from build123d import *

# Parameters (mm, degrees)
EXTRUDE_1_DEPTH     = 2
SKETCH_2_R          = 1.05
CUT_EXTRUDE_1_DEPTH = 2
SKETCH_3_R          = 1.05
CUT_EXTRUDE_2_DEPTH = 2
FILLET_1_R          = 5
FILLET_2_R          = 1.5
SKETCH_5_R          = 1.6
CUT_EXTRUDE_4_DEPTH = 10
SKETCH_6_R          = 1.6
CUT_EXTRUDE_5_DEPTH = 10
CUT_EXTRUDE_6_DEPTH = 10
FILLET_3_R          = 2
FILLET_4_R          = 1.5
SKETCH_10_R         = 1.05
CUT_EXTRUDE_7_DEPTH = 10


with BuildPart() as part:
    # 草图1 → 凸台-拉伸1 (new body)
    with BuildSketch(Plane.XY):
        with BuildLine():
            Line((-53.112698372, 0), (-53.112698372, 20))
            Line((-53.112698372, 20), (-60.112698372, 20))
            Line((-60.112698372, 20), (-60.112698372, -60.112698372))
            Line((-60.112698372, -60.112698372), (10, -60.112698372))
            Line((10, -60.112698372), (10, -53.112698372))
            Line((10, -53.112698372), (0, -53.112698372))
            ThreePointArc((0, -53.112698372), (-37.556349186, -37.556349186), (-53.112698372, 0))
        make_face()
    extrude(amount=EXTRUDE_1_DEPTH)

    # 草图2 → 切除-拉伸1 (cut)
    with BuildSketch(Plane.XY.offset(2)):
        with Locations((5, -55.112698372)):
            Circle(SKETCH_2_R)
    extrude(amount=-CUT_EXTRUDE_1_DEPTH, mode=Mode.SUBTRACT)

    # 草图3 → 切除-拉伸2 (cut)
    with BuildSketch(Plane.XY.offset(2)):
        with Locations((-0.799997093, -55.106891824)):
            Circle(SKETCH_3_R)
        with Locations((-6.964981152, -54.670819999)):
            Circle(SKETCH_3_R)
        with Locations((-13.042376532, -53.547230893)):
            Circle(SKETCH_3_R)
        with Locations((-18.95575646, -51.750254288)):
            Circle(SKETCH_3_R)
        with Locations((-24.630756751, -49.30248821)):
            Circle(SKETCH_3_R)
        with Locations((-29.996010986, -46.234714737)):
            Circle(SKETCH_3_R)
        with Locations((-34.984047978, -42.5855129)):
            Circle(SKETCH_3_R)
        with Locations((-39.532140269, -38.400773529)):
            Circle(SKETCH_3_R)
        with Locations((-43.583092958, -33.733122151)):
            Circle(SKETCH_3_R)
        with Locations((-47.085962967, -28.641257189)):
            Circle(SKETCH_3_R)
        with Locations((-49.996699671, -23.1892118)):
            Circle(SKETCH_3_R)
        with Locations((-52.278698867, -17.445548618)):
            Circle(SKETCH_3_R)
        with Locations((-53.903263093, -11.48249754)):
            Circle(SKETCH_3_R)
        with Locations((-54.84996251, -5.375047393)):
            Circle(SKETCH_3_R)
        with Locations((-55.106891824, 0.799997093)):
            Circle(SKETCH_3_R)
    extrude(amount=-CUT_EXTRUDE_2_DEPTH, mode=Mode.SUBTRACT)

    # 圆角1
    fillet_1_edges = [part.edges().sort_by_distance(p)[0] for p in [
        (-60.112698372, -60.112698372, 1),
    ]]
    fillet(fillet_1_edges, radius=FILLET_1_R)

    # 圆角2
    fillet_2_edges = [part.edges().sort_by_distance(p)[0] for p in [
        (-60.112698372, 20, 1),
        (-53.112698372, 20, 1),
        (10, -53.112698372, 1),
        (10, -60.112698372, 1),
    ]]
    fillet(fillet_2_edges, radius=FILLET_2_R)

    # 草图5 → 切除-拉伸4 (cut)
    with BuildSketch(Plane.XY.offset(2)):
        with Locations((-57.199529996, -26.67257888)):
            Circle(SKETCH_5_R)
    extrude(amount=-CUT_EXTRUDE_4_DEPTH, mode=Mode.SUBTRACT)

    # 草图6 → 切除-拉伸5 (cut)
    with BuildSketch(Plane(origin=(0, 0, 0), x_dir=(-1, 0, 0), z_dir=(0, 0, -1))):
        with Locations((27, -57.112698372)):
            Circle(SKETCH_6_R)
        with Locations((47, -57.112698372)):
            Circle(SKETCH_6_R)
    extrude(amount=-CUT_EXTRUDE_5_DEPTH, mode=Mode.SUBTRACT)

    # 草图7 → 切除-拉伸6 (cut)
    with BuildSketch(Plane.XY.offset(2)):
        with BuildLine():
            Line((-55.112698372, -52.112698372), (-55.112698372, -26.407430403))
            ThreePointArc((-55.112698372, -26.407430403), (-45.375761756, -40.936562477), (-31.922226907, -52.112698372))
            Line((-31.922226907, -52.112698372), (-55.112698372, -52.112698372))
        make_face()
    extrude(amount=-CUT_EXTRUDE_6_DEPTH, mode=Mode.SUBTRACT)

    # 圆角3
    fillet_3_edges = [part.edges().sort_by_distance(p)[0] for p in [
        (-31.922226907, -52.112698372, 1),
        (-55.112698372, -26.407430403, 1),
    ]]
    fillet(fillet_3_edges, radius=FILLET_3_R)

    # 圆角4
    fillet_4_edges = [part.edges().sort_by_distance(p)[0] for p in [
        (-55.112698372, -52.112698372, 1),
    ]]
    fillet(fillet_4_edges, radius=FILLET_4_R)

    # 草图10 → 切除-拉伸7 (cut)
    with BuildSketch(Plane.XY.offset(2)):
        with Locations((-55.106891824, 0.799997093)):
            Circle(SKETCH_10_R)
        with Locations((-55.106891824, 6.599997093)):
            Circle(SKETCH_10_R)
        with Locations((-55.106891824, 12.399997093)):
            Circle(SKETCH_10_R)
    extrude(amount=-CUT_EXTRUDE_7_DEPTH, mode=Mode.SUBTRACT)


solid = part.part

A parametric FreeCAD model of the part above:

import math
import FreeCAD as App
import Part
import Sketcher

V = App.Vector


def edges_at(feature, points):
    """Names of the edges that pass closest to the given points."""
    edges = feature.Shape.Edges
    near = lambda p: min(range(len(edges)), key=lambda i: edges[i].distToShape(Part.Vertex(*p))[0])
    return sorted({f"Edge{near(p) + 1}" for p in points})

doc = App.newDocument("Part")
params = doc.addObject("Spreadsheet::Sheet", "Params")
for row, (alias, value) in enumerate([
    ("sketch1_width", "7 mm"),
    ("sketch1_width2", "10 mm"),
    ("sketch1_height", "20 mm"),
    ("pad1_length", "2 mm"),
    ("sketch2_diameter", "2.1 mm"),
    ("pocket1_length", "2 mm"),
    ("sketch3_diameter", "2.1 mm"),
    ("pocket2_length", "2 mm"),
    ("fillet_radius", "5 mm"),
    ("fillet2_radius", "1.5 mm"),
    ("sketch4_diameter", "3.2 mm"),
    ("pocket3_length", "10 mm"),
    ("sketch5_diameter", "3.2 mm"),
    ("pocket4_length", "10 mm"),
    ("pocket5_length", "10 mm"),
    ("fillet3_radius", "2 mm"),
    ("fillet4_radius", "1.5 mm"),
    ("sketch7_diameter", "2.1 mm"),
    ("pocket6_length", "10 mm"),
], start=1):
    params.set(f"A{row}", alias)
    params.set(f"B{row}", "=" + value)
    params.setAlias(f"B{row}", alias)

body = doc.addObject("PartDesign::Body", "Body")

# Sketch on XY plane
sketch1 = body.newObject("Sketcher::SketchObject", "Sketch")
sketch1.AttachmentSupport = (doc.getObject("XY_Plane"), [""])
sketch1.MapMode = "FlatFace"
sketch1.addGeometry([
    Part.LineSegment(V(-53, 0, 0), V(-53, 20, 0)),  # 0
    Part.LineSegment(V(-53, 20, 0), V(-60, 20, 0)),  # 1
    Part.LineSegment(V(-60, 20, 0), V(-60, -60, 0)),  # 2
    Part.LineSegment(V(-60, -60, 0), V(10, -60, 0)),  # 3
    Part.LineSegment(V(10, -60, 0), V(10, -53, 0)),  # 4
    Part.LineSegment(V(10, -53, 0), V(0, -53, 0)),  # 5
    Part.ArcOfCircle(Part.Circle(V(0, 0, 0), V(0, 0, 1), 53), math.radians(180), math.radians(270)),  # 6
], False)
sketch1.addConstraint([
    Sketcher.Constraint("Coincident", 0, 2, 1, 1),
    Sketcher.Constraint("Coincident", 1, 2, 2, 1),
    Sketcher.Constraint("Coincident", 2, 2, 3, 1),
    Sketcher.Constraint("Coincident", 3, 2, 4, 1),
    Sketcher.Constraint("Coincident", 4, 2, 5, 1),
    Sketcher.Constraint("Tangent", 5, 2, 6, 2),
    Sketcher.Constraint("Tangent", 6, 1, 0, 1),
    Sketcher.Constraint("Vertical", 0),
    Sketcher.Constraint("Horizontal", 1),
    Sketcher.Constraint("Vertical", 2),
    Sketcher.Constraint("Horizontal", 3),
    Sketcher.Constraint("Vertical", 4),
    Sketcher.Constraint("Horizontal", 5),
    Sketcher.Constraint("Coincident", 6, 3, -1, 1),
    Sketcher.Constraint("Equal", 1, 4),
    Sketcher.Constraint("DistanceX", 1, 2, 1, 1, 7.0),
    Sketcher.Constraint("DistanceX", 5, 2, 5, 1, 10.0),
    Sketcher.Constraint("DistanceY", 0, 1, 0, 2, 20.0),
    Sketcher.Constraint("Radius", 6, 53.112698),
])
sketch1.setExpression("Constraints[15]", "Params.sketch1_width")
sketch1.setExpression("Constraints[16]", "Params.sketch1_width2")
sketch1.setExpression("Constraints[17]", "Params.sketch1_height")
pad1 = body.newObject("PartDesign::Pad", "Pad")
pad1.Profile = sketch1
pad1.setExpression("Length", "Params.pad1_length")

# Sketch on XY plane
sketch2 = body.newObject("Sketcher::SketchObject", "Sketch001")
sketch2.AttachmentSupport = (doc.getObject("XY_Plane"), [""])
sketch2.MapMode = "FlatFace"
sketch2.AttachmentOffset = App.Placement(V(0, 0, 2), App.Rotation())
sketch2.addGeometry(Part.Circle(V(5, -55.1, 0), V(0, 0, 1), 1.1), False)
sketch2.addConstraint([
    Sketcher.Constraint("Diameter", 0, 2.1),
    Sketcher.Constraint("DistanceX", -1, 1, 0, 3, 5.0),
    Sketcher.Constraint("DistanceY", 0, 3, -1, 1, 55.112698),
])
sketch2.setExpression("Constraints[0]", "Params.sketch2_diameter")
pocket1 = body.newObject("PartDesign::Pocket", "Pocket")
pocket1.Profile = sketch2
pocket1.setExpression("Length", "Params.pocket1_length")

# Sketch on XY plane
sketch3 = body.newObject("Sketcher::SketchObject", "Sketch002")
sketch3.AttachmentSupport = (doc.getObject("XY_Plane"), [""])
sketch3.MapMode = "FlatFace"
sketch3.AttachmentOffset = App.Placement(V(0, 0, 2), App.Rotation())
sketch3.addGeometry([
    Part.Circle(V(-0.8, -55.1, 0), V(0, 0, 1), 1.1),  # 0
    Part.Circle(V(-7, -54.7, 0), V(0, 0, 1), 1.1),  # 1
    Part.Circle(V(-13, -53.5, 0), V(0, 0, 1), 1.1),  # 2
    Part.Circle(V(-19, -51.8, 0), V(0, 0, 1), 1.1),  # 3
    Part.Circle(V(-24.6, -49.3, 0), V(0, 0, 1), 1.1),  # 4
    Part.Circle(V(-30, -46.2, 0), V(0, 0, 1), 1.1),  # 5
    Part.Circle(V(-35, -42.6, 0), V(0, 0, 1), 1.1),  # 6
    Part.Circle(V(-39.5, -38.4, 0), V(0, 0, 1), 1.1),  # 7
    Part.Circle(V(-43.6, -33.7, 0), V(0, 0, 1), 1.1),  # 8
    Part.Circle(V(-47.1, -28.6, 0), V(0, 0, 1), 1.1),  # 9
    Part.Circle(V(-50, -23.2, 0), V(0, 0, 1), 1.1),  # 10
    Part.Circle(V(-52.3, -17.4, 0), V(0, 0, 1), 1.1),  # 11
    Part.Circle(V(-53.9, -11.5, 0), V(0, 0, 1), 1.1),  # 12
    Part.Circle(V(-54.8, -5.4, 0), V(0, 0, 1), 1.1),  # 13
    Part.Circle(V(-55.1, 0.8, 0), V(0, 0, 1), 1.1),  # 14
], False)
sketch3.addConstraint([
    Sketcher.Constraint("Equal", 0, 1),
    Sketcher.Constraint("Equal", 1, 2),
    Sketcher.Constraint("Equal", 2, 3),
    Sketcher.Constraint("Equal", 3, 4),
    Sketcher.Constraint("Equal", 4, 5),
    Sketcher.Constraint("Equal", 5, 6),
    Sketcher.Constraint("Equal", 6, 7),
    Sketcher.Constraint("Equal", 7, 8),
    Sketcher.Constraint("Equal", 8, 9),
    Sketcher.Constraint("Equal", 9, 10),
    Sketcher.Constraint("Equal", 10, 11),
    Sketcher.Constraint("Equal", 11, 12),
    Sketcher.Constraint("Equal", 12, 13),
    Sketcher.Constraint("Equal", 13, 14),
    Sketcher.Constraint("Diameter", 0, 2.1),
    Sketcher.Constraint("DistanceX", 4, 3, 3, 3, 5.675),
    Sketcher.Constraint("DistanceX", 11, 3, 10, 3, 2.281999),
    Sketcher.Constraint("DistanceX", 13, 3, 9, 3, 7.764),
    Sketcher.Constraint("DistanceX", 10, 3, -1, 1, 49.9967),
    Sketcher.Constraint("DistanceY", 5, 3, 6, 3, 3.649202),
    Sketcher.Constraint("DistanceY", 6, 3, 10, 3, 19.396301),
    Sketcher.Constraint("DistanceX", 12, 3, 9, 3, 6.8173),
    Sketcher.Constraint("DistanceY", 11, 3, 13, 3, 12.070501),
    Sketcher.Constraint("DistanceY", 0, 3, -1, 1, 55.106892),
    Sketcher.Constraint("DistanceX", 1, 3, -1, 1, 6.964981),
    Sketcher.Constraint("DistanceY", 1, 3, -1, 1, 54.67082),
    Sketcher.Constraint("DistanceY", 2, 3, -1, 1, 53.547231),
    Sketcher.Constraint("DistanceY", 4, 3, -1, 1, 49.302488),
    Sketcher.Constraint("DistanceX", 5, 3, -1, 1, 29.996011),
    Sketcher.Constraint("DistanceX", 7, 3, -1, 1, 39.53214),
    Sketcher.Constraint("DistanceY", 10, 3, -1, 1, 23.189212),
    Sketcher.Constraint("DistanceY", 11, 3, -1, 1, 17.445549),
    Sketcher.Constraint("DistanceX", 14, 3, -1, 1, 55.106892),
    Sketcher.Constraint("DistanceX", 2, 3, 0, 3, 12.242379),
    Sketcher.Constraint("DistanceX", 3, 3, 2, 3, 5.91338),
    Sketcher.Constraint("DistanceY", 3, 3, 5, 3, 5.51554),
    Sketcher.Constraint("DistanceX", 6, 3, 4, 3, 10.353291),
    Sketcher.Constraint("DistanceY", 6, 3, 7, 3, 4.184739),
    Sketcher.Constraint("DistanceY", 7, 3, 8, 3, 4.667651),
    Sketcher.Constraint("DistanceX", 8, 3, 5, 3, 13.587082),
    Sketcher.Constraint("DistanceX", 9, 3, 8, 3, 3.50287),
    Sketcher.Constraint("DistanceY", 4, 3, 9, 3, 20.661231),
    Sketcher.Constraint("DistanceX", 10, 3, 6, 3, 15.012652),
    Sketcher.Constraint("DistanceY", 11, 3, 12, 3, 5.963051),
    Sketcher.Constraint("DistanceY", 10, 3, 14, 3, 23.989209),
])
sketch3.setExpression("Constraints[14]", "Params.sketch3_diameter")
pocket2 = body.newObject("PartDesign::Pocket", "Pocket001")
pocket2.Profile = sketch3
pocket2.setExpression("Length", "Params.pocket2_length")
doc.recompute()

fillet = body.newObject("PartDesign::Fillet", "Fillet")
fillet.Base = (pocket2, edges_at(pocket2, [(-60.113, -60.113, 1)]))
fillet.setExpression("Radius", "Params.fillet_radius")
doc.recompute()

fillet2 = body.newObject("PartDesign::Fillet", "Fillet001")
fillet2.Base = (fillet, edges_at(fillet, [
    (-60.113, 20, 1),
    (-53.113, 20, 1),
    (10, -53.113, 1),
    (10, -60.113, 1),
]))
fillet2.setExpression("Radius", "Params.fillet2_radius")

# Sketch on XY plane
sketch4 = body.newObject("Sketcher::SketchObject", "Sketch003")
sketch4.AttachmentSupport = (doc.getObject("XY_Plane"), [""])
sketch4.MapMode = "FlatFace"
sketch4.AttachmentOffset = App.Placement(V(0, 0, 2), App.Rotation())
sketch4.addGeometry(Part.Circle(V(-57.2, -26.7, 0), V(0, 0, 1), 1.6), False)
sketch4.addConstraint([
    Sketcher.Constraint("Diameter", 0, 3.2),
    Sketcher.Constraint("DistanceX", 0, 3, -1, 1, 57.19953),
    Sketcher.Constraint("DistanceY", 0, 3, -1, 1, 26.672579),
])
sketch4.setExpression("Constraints[0]", "Params.sketch4_diameter")
pocket3 = body.newObject("PartDesign::Pocket", "Pocket002")
pocket3.Profile = sketch4
pocket3.setExpression("Length", "Params.pocket3_length")

# Sketch on XY plane
sketch5 = body.newObject("Sketcher::SketchObject", "Sketch004")
sketch5.AttachmentSupport = (doc.getObject("XY_Plane"), [""])
sketch5.MapMode = "FlatFace"
sketch5.addGeometry([
    Part.Circle(V(-27, -57.1, 0), V(0, 0, 1), 1.6),
    Part.Circle(V(-47, -57.1, 0), V(0, 0, 1), 1.6),
], False)
sketch5.addConstraint([
    Sketcher.Constraint("Equal", 0, 1),
    Sketcher.Constraint("Horizontal", 0, 3, 1, 3),
    Sketcher.Constraint("Diameter", 0, 3.2),
    Sketcher.Constraint("DistanceX", 0, 3, -1, 1, 27.0),
    Sketcher.Constraint("DistanceX", 1, 3, -1, 1, 47.0),
    Sketcher.Constraint("DistanceY", 0, 3, -1, 1, 57.112698),
])
sketch5.setExpression("Constraints[2]", "Params.sketch5_diameter")
pocket4 = body.newObject("PartDesign::Pocket", "Pocket003")
pocket4.Profile = sketch5
pocket4.setExpression("Length", "Params.pocket4_length")
pocket4.Reversed = True

# Sketch on XY plane
sketch6 = body.newObject("Sketcher::SketchObject", "Sketch005")
sketch6.AttachmentSupport = (doc.getObject("XY_Plane"), [""])
sketch6.MapMode = "FlatFace"
sketch6.AttachmentOffset = App.Placement(V(0, 0, 2), App.Rotation())
sketch6.addGeometry([
    Part.LineSegment(V(-55, -26, 0), V(-55, -52, 0)),
    Part.LineSegment(V(-55, -52, 0), V(-32, -52, 0)),
    Part.ArcOfCircle(Part.Circle(V(0, 0, 0), V(0, 0, 1), 61), math.radians(-154), math.radians(-121)),
], False)
sketch6.addConstraint([
    Sketcher.Constraint("Coincident", 0, 2, 1, 1),
    Sketcher.Constraint("Coincident", 1, 2, 2, 2),
    Sketcher.Constraint("Coincident", 2, 1, 0, 1),
    Sketcher.Constraint("Vertical", 0),
    Sketcher.Constraint("Horizontal", 1),
    Sketcher.Constraint("Coincident", 2, 3, -1, 1),
    Sketcher.Constraint("Radius", 2, 61.112698),
    Sketcher.Constraint("DistanceX", 1, 1, 1, 2, 23.190471),
    Sketcher.Constraint("DistanceX", 0, 2, -1, 1, 55.112698),
])
pocket5 = body.newObject("PartDesign::Pocket", "Pocket004")
pocket5.Profile = sketch6
pocket5.setExpression("Length", "Params.pocket5_length")
doc.recompute()

fillet3 = body.newObject("PartDesign::Fillet", "Fillet002")
fillet3.Base = (pocket5, edges_at(pocket5, [(-31.922, -52.113, 1), (-55.113, -26.407, 1)]))
fillet3.setExpression("Radius", "Params.fillet3_radius")
doc.recompute()

fillet4 = body.newObject("PartDesign::Fillet", "Fillet003")
fillet4.Base = (fillet3, edges_at(fillet3, [(-55.113, -52.113, 1)]))
fillet4.setExpression("Radius", "Params.fillet4_radius")

# Sketch on XY plane
sketch7 = body.newObject("Sketcher::SketchObject", "Sketch006")
sketch7.AttachmentSupport = (doc.getObject("XY_Plane"), [""])
sketch7.MapMode = "FlatFace"
sketch7.AttachmentOffset = App.Placement(V(0, 0, 2), App.Rotation())
sketch7.addGeometry([
    Part.Circle(V(-55.1, 0.8, 0), V(0, 0, 1), 1.1),
    Part.Circle(V(-55.1, 6.6, 0), V(0, 0, 1), 1.1),
    Part.Circle(V(-55.1, 12.4, 0), V(0, 0, 1), 1.1),
], False)
sketch7.addConstraint([
    Sketcher.Constraint("Equal", 0, 1),
    Sketcher.Constraint("Equal", 1, 2),
    Sketcher.Constraint("Vertical", 0, 3, 1, 3),
    Sketcher.Constraint("Vertical", 1, 3, 2, 3),
    Sketcher.Constraint("Diameter", 0, 2.1),
    Sketcher.Constraint("DistanceY", 0, 3, 1, 3, 5.8),
    Sketcher.Constraint("DistanceY", 1, 3, 2, 3, 5.8),
    Sketcher.Constraint("DistanceX", 0, 3, -1, 1, 55.106892),
    Sketcher.Constraint("DistanceY", -1, 1, 0, 3, 0.799997),
])
sketch7.setExpression("Constraints[4]", "Params.sketch7_diameter")
pocket6 = body.newObject("PartDesign::Pocket", "Pocket005")
pocket6.Profile = sketch7
pocket6.setExpression("Length", "Params.pocket6_length")

doc.recompute()
